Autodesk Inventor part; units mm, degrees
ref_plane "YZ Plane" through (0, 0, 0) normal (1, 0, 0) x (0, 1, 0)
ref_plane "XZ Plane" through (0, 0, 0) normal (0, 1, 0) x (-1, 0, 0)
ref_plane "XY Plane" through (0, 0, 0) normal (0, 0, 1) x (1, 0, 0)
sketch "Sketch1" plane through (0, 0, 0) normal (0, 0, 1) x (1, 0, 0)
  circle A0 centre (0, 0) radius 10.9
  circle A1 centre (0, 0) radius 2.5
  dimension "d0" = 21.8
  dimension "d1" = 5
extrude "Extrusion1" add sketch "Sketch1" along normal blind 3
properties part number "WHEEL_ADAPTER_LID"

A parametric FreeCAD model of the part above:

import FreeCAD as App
import Part
import Sketcher

doc = App.newDocument("Part")
body = doc.addObject("PartDesign::Body", "Body")

sketch1 = body.newObject("Sketcher::SketchObject", "Sketch")
sketch1.AttachmentSupport = (doc.getObject("XY_Plane"), [""])
sketch1.MapMode = "FlatFace"
sketch1.addGeometry(Part.Circle(App.Vector(0, 0, 0), App.Vector(0, 0, 1), 10.9), False)
sketch1.addGeometry(Part.Circle(App.Vector(0, 0, 0), App.Vector(0, 0, 1), 2.5), False)
sketch1.addConstraint(Sketcher.Constraint("Coincident", 0, 3, -1, 1))
sketch1.addConstraint(Sketcher.Constraint("Coincident", 1, 3, -1, 1))
sketch1.addConstraint(Sketcher.Constraint("Diameter", 1, 5.0))
sketch1.addConstraint(Sketcher.Constraint("Diameter", 0, 21.8))
pad1 = body.newObject("PartDesign::Pad", "Pad")
pad1.Profile = sketch1
pad1.Length = 3

doc.recompute()
